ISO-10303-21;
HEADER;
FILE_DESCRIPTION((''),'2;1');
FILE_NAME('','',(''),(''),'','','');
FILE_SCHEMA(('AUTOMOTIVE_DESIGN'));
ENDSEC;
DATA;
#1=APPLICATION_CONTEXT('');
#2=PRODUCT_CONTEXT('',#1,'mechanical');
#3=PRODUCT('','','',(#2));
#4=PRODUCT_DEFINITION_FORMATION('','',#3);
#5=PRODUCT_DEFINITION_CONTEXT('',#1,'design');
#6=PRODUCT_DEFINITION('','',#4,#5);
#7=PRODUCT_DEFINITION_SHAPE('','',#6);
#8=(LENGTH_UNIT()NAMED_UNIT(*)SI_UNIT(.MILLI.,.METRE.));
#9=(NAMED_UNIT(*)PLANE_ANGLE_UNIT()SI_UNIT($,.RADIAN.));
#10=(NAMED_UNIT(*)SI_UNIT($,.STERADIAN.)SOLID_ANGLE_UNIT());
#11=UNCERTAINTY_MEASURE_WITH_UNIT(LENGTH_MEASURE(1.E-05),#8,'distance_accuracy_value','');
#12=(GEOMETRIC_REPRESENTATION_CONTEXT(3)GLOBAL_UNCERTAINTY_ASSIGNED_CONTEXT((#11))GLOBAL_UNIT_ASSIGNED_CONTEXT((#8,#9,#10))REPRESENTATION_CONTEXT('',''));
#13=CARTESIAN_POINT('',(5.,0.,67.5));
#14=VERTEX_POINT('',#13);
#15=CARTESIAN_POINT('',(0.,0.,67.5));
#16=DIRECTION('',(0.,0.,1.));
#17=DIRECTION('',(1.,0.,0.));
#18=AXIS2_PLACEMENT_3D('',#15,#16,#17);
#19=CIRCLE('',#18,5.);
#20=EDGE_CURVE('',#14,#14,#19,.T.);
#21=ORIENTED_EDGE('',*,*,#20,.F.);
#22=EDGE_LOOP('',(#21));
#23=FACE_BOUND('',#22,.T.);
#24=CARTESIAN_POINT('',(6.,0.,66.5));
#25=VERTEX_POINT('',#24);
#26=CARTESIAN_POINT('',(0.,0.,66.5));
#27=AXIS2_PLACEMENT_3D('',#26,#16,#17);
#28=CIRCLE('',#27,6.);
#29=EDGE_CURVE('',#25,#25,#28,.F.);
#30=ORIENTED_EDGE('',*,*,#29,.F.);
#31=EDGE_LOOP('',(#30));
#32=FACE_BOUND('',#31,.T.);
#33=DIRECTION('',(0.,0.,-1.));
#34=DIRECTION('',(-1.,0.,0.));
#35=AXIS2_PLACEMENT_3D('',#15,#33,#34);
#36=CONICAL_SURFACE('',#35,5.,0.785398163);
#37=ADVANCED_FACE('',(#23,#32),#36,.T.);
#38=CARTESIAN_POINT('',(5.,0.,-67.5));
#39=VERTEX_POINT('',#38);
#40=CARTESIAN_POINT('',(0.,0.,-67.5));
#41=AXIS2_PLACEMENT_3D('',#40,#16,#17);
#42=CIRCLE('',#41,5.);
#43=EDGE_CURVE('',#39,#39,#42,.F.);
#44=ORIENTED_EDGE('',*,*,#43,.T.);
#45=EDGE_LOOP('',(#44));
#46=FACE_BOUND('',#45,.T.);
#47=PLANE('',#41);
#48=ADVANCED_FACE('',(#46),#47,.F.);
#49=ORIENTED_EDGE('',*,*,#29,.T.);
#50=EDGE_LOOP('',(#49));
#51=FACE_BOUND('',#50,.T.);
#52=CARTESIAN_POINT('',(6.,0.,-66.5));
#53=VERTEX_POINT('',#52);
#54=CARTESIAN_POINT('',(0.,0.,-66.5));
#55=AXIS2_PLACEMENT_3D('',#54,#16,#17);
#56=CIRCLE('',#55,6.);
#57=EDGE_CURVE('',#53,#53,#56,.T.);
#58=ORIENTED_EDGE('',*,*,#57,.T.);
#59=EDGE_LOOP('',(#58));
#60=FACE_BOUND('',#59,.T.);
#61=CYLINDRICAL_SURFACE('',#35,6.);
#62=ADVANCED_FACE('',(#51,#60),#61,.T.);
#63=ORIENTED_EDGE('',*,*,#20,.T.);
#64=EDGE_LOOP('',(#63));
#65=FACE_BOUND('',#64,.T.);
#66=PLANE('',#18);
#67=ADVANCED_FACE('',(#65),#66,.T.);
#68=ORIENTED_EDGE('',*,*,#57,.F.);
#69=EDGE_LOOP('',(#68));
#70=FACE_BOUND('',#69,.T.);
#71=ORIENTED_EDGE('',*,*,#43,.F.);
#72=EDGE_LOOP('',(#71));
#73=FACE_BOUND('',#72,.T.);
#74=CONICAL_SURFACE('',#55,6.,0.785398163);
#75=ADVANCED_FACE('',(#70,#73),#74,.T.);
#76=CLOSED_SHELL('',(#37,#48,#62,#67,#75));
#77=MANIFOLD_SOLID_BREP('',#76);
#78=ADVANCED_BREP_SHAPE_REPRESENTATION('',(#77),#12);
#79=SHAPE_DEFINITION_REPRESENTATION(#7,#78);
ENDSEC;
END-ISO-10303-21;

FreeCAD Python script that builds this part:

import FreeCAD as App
import Part
import Sketcher
Q = App.Units.Quantity


def edges_at(feature, points):
    """Names of the edges that pass closest to the given points."""
    edges = feature.Shape.Edges
    near = lambda p: min(range(len(edges)), key=lambda i: edges[i].distToShape(Part.Vertex(*p))[0])
    return sorted({f"Edge{near(p) + 1}" for p in points})

doc = App.newDocument("Part")
body = doc.addObject("PartDesign::Body", "Body")

# Sketch on XY plane
sketch1 = body.newObject("Sketcher::SketchObject", "Sketch")
sketch1.AttachmentSupport = (doc.getObject("XY_Plane"), [""])
sketch1.MapMode = "FlatFace"
sketch1.addGeometry(Part.Circle(App.Vector(0, 0, 0), App.Vector(0, 0, 1), 6), False)
sketch1.addConstraint([
    Sketcher.Constraint("Coincident", 0, 3, -1, 1),
    Sketcher.Constraint("Diameter", 0, Q("12 mm")),
])
pad1 = body.newObject("PartDesign::Pad", "Pad")
pad1.Profile = sketch1
pad1.Length = 135
pad1.Midplane = True
doc.recompute()

chamfer = body.newObject("PartDesign::Chamfer", "Chamfer")
chamfer.Base = (pad1, edges_at(pad1, [(-6, 0, -67.5), (-6, 0, 67.5)]))
chamfer.Size = 1

doc.recompute()
